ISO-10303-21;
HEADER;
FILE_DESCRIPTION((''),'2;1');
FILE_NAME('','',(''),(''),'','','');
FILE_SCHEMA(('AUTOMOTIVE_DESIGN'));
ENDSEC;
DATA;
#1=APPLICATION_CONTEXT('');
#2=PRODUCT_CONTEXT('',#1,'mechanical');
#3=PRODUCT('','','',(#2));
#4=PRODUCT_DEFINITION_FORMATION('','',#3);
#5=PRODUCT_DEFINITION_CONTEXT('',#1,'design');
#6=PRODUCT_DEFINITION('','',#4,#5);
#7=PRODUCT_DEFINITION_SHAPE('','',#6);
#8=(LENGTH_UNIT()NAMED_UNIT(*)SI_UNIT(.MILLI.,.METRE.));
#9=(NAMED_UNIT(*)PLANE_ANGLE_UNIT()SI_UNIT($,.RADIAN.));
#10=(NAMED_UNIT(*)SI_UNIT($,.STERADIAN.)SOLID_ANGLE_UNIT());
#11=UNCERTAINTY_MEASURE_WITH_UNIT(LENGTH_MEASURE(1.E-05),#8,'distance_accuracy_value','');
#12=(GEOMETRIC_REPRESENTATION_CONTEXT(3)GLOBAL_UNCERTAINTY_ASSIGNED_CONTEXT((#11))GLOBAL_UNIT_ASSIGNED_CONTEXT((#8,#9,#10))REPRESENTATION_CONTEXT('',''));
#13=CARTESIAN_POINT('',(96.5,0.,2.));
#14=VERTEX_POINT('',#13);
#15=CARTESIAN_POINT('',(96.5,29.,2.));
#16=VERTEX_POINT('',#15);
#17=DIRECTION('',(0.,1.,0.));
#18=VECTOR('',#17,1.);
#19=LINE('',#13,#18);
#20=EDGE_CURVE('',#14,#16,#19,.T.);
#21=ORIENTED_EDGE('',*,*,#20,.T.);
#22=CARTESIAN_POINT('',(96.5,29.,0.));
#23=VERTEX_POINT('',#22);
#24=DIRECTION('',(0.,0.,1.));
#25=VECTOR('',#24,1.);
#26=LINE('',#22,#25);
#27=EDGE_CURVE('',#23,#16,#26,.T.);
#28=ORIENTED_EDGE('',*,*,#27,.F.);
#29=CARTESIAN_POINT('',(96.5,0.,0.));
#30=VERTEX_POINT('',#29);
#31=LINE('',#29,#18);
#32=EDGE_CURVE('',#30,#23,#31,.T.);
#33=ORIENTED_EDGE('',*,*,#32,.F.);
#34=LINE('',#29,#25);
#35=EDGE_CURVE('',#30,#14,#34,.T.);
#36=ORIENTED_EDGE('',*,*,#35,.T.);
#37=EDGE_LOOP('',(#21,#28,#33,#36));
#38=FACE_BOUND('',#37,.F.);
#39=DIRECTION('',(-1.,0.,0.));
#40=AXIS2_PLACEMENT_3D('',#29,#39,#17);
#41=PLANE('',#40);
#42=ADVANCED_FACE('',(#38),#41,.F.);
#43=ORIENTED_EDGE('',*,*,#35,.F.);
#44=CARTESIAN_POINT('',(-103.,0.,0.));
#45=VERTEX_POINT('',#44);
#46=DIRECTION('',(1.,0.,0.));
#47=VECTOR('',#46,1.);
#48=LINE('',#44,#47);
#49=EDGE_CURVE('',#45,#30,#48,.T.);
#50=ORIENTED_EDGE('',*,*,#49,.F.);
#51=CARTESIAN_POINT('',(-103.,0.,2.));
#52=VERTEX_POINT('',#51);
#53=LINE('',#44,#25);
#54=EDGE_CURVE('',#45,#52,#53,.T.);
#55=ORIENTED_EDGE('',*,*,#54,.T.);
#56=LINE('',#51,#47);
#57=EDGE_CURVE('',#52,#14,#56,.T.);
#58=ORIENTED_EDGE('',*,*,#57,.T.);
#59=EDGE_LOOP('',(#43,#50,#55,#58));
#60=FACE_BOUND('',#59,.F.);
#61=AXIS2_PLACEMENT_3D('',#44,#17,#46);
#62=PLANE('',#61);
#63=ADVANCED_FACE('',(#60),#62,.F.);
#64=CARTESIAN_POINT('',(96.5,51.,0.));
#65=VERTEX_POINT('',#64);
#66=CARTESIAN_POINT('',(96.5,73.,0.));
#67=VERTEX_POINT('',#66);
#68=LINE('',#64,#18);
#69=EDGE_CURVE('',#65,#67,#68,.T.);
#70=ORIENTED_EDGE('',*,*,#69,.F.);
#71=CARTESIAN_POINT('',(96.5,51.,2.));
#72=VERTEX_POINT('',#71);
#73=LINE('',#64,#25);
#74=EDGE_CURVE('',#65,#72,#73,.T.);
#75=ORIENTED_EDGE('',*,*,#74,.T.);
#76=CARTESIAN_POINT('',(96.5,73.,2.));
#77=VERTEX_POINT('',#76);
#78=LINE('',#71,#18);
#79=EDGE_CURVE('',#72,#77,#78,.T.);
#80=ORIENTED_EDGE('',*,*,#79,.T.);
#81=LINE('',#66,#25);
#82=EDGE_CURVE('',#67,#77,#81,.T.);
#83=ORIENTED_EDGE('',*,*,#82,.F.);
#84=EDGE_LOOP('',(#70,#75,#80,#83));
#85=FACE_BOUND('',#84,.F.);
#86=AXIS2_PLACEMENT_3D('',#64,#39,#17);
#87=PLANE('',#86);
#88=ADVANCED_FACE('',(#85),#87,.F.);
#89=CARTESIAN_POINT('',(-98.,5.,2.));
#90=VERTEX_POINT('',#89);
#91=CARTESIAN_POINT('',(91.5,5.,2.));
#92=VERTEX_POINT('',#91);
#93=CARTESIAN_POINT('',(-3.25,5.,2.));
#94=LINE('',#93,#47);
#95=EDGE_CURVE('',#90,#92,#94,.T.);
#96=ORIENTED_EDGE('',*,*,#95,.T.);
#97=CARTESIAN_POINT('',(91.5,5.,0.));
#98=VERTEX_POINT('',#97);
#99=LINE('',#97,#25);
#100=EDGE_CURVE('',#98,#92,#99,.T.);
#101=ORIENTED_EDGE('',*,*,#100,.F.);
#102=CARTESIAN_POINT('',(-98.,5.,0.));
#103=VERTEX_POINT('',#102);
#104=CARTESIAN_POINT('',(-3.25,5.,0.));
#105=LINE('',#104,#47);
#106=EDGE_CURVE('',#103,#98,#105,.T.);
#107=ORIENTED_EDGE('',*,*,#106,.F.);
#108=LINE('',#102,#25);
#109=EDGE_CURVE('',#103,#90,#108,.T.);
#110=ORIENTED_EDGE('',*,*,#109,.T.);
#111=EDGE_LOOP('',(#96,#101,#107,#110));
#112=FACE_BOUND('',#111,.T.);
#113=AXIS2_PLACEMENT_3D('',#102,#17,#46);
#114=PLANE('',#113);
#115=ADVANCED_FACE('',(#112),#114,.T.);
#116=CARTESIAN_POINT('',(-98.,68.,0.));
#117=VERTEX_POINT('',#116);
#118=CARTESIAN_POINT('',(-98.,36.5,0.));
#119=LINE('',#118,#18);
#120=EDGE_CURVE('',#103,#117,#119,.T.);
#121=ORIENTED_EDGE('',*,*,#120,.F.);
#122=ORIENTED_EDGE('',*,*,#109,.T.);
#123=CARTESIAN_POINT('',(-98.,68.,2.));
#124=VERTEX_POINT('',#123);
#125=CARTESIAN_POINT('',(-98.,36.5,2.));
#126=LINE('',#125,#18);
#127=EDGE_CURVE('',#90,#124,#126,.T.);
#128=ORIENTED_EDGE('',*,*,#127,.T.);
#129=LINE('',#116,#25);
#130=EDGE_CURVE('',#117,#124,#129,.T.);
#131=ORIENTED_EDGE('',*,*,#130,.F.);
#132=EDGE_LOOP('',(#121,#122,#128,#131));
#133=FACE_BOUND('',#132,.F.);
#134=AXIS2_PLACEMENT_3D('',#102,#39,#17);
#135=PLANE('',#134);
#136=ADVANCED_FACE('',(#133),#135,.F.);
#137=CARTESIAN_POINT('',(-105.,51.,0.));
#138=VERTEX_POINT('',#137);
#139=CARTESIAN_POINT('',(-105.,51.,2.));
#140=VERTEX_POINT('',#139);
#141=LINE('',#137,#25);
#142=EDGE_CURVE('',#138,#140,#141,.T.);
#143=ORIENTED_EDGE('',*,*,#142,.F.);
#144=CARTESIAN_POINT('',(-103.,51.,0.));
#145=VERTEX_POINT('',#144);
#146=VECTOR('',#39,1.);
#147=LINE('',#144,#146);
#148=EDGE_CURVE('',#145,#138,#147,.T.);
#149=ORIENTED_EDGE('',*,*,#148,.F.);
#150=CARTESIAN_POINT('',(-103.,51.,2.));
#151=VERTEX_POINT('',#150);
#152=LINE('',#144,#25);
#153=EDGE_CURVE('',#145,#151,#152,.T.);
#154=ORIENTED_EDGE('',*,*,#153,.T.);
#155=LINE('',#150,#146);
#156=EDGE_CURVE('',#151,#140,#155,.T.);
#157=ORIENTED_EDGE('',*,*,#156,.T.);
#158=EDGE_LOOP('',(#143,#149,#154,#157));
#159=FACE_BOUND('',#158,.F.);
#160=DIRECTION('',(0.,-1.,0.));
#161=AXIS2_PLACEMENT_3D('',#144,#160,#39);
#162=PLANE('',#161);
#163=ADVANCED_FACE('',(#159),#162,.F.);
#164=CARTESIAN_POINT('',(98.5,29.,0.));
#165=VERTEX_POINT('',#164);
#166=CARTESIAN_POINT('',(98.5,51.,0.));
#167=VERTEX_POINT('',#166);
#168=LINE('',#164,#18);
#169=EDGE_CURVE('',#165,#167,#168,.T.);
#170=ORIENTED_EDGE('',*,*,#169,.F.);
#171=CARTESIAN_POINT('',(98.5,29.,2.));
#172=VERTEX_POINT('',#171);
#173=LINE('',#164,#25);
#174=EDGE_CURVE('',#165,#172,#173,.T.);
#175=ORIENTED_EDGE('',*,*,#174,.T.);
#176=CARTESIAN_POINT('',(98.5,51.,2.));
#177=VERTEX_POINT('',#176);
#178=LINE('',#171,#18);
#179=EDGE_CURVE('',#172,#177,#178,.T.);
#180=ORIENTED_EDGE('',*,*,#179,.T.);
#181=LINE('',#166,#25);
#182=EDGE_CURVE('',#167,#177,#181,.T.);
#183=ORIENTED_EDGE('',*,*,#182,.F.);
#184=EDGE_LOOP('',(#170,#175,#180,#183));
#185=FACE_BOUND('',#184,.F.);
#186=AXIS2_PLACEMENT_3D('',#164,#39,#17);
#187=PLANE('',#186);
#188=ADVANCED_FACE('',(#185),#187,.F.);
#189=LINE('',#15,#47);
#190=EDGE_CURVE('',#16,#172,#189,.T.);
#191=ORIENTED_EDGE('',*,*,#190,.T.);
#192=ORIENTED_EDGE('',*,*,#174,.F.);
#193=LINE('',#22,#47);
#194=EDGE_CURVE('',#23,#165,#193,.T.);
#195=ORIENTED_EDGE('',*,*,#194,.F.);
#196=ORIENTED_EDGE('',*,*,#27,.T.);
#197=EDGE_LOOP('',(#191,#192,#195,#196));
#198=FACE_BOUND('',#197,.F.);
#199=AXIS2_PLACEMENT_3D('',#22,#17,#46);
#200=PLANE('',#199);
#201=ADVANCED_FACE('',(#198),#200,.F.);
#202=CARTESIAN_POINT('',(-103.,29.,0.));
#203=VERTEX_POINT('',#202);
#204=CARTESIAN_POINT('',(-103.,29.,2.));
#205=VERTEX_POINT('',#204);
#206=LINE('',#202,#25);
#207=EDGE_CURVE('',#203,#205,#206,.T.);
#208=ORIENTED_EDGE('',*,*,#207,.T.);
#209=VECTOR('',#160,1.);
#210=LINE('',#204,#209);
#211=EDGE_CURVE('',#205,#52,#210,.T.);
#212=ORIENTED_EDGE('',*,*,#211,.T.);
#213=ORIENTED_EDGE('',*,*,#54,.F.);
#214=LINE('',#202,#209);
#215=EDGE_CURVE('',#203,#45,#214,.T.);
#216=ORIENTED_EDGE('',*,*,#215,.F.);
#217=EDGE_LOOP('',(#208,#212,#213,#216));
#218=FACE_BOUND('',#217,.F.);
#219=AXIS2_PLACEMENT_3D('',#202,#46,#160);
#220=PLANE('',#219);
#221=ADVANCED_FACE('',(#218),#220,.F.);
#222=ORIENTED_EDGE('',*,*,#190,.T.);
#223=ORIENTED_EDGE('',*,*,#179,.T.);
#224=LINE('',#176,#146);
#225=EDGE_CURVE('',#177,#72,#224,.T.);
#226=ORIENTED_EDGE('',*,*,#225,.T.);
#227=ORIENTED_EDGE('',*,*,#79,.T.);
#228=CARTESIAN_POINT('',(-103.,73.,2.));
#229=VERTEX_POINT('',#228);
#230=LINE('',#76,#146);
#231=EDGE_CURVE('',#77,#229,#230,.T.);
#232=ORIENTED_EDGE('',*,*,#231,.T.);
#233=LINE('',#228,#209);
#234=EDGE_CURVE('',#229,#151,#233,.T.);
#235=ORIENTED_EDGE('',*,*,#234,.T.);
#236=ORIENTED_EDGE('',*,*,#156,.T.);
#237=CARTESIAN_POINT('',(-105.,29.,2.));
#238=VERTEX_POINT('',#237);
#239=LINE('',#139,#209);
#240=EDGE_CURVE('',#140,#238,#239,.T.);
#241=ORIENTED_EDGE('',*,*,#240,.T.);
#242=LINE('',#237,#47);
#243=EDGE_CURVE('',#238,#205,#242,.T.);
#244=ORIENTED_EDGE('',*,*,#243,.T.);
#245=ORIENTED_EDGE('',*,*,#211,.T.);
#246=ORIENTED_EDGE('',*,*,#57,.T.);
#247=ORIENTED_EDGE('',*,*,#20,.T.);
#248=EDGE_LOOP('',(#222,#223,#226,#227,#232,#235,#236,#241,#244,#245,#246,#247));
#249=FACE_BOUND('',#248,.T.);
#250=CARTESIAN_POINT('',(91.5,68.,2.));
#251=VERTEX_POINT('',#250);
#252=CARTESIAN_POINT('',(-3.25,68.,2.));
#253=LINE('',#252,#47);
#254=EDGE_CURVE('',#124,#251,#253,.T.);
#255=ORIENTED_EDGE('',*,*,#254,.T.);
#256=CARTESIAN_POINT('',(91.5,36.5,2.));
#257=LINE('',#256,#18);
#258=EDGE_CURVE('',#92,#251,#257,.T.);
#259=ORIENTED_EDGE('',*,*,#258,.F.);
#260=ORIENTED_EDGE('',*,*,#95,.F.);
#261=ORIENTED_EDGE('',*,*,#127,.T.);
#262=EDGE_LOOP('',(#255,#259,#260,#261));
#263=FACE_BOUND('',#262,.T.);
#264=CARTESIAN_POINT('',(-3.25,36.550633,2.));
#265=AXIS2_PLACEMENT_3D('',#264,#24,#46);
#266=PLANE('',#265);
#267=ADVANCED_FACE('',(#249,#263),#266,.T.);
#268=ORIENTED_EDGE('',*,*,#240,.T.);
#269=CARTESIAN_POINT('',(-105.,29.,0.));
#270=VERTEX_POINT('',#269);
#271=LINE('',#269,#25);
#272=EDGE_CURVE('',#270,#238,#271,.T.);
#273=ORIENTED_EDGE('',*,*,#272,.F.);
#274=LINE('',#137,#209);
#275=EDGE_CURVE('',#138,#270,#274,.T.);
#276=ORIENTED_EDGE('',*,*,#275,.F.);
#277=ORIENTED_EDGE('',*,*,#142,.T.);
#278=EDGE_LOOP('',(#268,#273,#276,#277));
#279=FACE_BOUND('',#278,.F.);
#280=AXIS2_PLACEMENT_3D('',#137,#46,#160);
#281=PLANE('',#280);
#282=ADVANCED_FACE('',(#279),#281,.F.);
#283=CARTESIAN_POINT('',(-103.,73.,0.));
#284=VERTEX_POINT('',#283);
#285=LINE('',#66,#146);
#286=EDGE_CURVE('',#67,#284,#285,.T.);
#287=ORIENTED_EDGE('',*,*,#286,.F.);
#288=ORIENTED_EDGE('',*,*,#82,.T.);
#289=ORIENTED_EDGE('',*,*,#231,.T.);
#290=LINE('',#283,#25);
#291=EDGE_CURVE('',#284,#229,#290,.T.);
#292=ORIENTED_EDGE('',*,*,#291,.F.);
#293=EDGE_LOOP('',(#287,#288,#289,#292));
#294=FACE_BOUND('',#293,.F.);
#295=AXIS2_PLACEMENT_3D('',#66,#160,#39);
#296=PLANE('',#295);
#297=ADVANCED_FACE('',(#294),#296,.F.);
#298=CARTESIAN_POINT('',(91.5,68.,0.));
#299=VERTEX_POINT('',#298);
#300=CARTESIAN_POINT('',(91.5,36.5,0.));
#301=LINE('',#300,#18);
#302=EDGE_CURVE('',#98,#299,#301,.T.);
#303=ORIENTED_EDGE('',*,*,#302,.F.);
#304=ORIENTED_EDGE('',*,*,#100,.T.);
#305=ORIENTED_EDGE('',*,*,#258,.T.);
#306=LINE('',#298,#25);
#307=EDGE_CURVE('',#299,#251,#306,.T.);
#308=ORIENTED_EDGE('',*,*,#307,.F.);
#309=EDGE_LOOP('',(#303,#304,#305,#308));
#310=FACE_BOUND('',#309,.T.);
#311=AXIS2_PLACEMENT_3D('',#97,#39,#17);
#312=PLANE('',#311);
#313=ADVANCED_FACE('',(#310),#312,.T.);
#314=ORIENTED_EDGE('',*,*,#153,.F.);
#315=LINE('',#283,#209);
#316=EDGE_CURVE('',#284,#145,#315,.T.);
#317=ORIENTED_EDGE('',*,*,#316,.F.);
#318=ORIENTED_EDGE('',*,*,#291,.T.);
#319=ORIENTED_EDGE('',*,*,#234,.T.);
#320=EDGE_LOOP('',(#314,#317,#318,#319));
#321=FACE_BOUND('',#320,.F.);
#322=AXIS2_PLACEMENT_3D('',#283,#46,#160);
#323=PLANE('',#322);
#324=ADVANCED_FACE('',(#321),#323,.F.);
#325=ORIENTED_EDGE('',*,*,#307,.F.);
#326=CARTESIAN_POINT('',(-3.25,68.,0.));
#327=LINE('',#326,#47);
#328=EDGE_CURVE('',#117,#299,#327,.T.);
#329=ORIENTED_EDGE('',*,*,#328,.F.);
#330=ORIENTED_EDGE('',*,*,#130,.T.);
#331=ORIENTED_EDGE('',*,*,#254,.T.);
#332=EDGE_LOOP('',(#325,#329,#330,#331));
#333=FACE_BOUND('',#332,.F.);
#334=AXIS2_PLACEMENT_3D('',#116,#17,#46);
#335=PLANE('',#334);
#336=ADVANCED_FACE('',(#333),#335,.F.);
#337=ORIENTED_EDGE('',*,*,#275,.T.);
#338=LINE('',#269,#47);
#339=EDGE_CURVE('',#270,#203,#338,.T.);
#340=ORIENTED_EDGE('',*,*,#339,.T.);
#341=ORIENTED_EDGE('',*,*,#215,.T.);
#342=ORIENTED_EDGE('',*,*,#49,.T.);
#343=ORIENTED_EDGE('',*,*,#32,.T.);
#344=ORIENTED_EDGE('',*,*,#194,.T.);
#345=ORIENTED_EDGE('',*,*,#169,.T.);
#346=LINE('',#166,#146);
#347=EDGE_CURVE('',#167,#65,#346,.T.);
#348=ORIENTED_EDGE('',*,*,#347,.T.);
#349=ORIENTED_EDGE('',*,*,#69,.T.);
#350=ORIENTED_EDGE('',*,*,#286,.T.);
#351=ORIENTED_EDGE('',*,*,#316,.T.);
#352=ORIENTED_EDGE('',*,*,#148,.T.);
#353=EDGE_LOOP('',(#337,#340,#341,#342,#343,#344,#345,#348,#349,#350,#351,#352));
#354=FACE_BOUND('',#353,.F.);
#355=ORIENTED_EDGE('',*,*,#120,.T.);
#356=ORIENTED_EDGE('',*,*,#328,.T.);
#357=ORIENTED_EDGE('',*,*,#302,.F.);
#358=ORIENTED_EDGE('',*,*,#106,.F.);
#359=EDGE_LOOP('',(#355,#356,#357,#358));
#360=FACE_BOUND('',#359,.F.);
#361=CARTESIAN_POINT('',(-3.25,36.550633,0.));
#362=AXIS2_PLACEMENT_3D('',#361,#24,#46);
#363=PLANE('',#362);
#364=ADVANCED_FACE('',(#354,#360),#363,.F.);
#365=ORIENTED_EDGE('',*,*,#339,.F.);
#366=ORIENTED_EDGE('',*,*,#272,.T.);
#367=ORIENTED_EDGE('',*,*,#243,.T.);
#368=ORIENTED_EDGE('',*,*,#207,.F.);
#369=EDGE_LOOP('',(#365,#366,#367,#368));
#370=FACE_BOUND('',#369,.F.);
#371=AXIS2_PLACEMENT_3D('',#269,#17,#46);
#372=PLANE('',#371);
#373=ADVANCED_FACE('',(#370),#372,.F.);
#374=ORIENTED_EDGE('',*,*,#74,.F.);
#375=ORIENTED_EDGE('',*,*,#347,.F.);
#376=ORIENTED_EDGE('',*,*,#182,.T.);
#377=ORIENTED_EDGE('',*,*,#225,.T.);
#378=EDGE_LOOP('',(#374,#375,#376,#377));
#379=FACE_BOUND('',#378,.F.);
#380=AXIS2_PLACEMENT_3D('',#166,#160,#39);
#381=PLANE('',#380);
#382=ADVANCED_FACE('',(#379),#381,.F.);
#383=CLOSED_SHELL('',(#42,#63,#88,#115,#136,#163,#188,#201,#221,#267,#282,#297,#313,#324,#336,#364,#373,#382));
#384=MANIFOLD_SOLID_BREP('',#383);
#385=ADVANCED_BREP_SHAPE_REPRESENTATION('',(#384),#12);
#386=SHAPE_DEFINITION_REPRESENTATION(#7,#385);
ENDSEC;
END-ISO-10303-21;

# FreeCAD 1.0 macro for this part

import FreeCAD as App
import Part
import Sketcher
from FreeCAD import Vector

doc = App.newDocument("Part")
params = doc.addObject("Spreadsheet::Sheet", "Params")
for row, (alias, value) in enumerate([
    ("sketch1_width", "2 mm"),
    ("sketch1_height", "22 mm"),
    ("sketch1_height2", "29 mm"),
    ("sketch1_height3", "63 mm"),
    ("sketch1_width2", "199.5 mm"),
    ("pad1_length", "2 mm"),
], start=1):
    params.set(f"A{row}", alias)
    params.set(f"B{row}", "=" + value)
    params.setAlias(f"B{row}", alias)

body = doc.addObject("PartDesign::Body", "Body")

# Sketch on XY plane
sketch1 = body.newObject("Sketcher::SketchObject", "Sketch")
sketch1.AttachmentSupport = (doc.getObject("XY_Plane"), [""])
sketch1.MapMode = "FlatFace"
sketch1.addGeometry([
    Part.LineSegment(Vector(96.5, 73, 0), Vector(-103, 73, 0)),  # 0
    Part.LineSegment(Vector(-103, 73, 0), Vector(-103, 51, 0)),  # 1
    Part.LineSegment(Vector(-103, 51, 0), Vector(-105, 51, 0)),  # 2
    Part.LineSegment(Vector(-105, 51, 0), Vector(-105, 29, 0)),  # 3
    Part.LineSegment(Vector(-105, 29, 0), Vector(-103, 29, 0)),  # 4
    Part.LineSegment(Vector(-103, 29, 0), Vector(-103, 0, 0)),  # 5
    Part.LineSegment(Vector(-103, 0, 0), Vector(96.5, 0, 0)),  # 6
    Part.LineSegment(Vector(96.5, 0, 0), Vector(96.5, 29, 0)),  # 7
    Part.LineSegment(Vector(96.5, 29, 0), Vector(98.5, 29, 0)),  # 8
    Part.LineSegment(Vector(98.5, 29, 0), Vector(98.5, 51, 0)),  # 9
    Part.LineSegment(Vector(98.5, 51, 0), Vector(96.5, 51, 0)),  # 10
    Part.LineSegment(Vector(96.5, 51, 0), Vector(96.5, 73, 0)),  # 11
    Part.LineSegment(Vector(91.5, 5, 0), Vector(-98, 5, 0)),  # 12
    Part.LineSegment(Vector(-98, 5, 0), Vector(-98, 68, 0)),  # 13
    Part.LineSegment(Vector(-98, 68, 0), Vector(91.5, 68, 0)),  # 14
    Part.LineSegment(Vector(91.5, 68, 0), Vector(91.5, 5, 0)),  # 15
], False)
sketch1.addConstraint([
    Sketcher.Constraint("Coincident", 0, 2, 1, 1),
    Sketcher.Constraint("Coincident", 1, 2, 2, 1),
    Sketcher.Constraint("Coincident", 2, 2, 3, 1),
    Sketcher.Constraint("Coincident", 3, 2, 4, 1),
    Sketcher.Constraint("Coincident", 4, 2, 5, 1),
    Sketcher.Constraint("Coincident", 5, 2, 6, 1),
    Sketcher.Constraint("Coincident", 6, 2, 7, 1),
    Sketcher.Constraint("Coincident", 7, 2, 8, 1),
    Sketcher.Constraint("Coincident", 8, 2, 9, 1),
    Sketcher.Constraint("Coincident", 9, 2, 10, 1),
    Sketcher.Constraint("Coincident", 10, 2, 11, 1),
    Sketcher.Constraint("Coincident", 11, 2, 0, 1),
    Sketcher.Constraint("Coincident", 12, 2, 13, 1),
    Sketcher.Constraint("Coincident", 13, 2, 14, 1),
    Sketcher.Constraint("Coincident", 14, 2, 15, 1),
    Sketcher.Constraint("Coincident", 15, 2, 12, 1),
    Sketcher.Constraint("Horizontal", 0),
    Sketcher.Constraint("Vertical", 1),
    Sketcher.Constraint("Horizontal", 2),
    Sketcher.Constraint("Vertical", 3),
    Sketcher.Constraint("Horizontal", 4),
    Sketcher.Constraint("Vertical", 5),
    Sketcher.Constraint("Horizontal", 6),
    Sketcher.Constraint("Vertical", 7),
    Sketcher.Constraint("Horizontal", 8),
    Sketcher.Constraint("Vertical", 9),
    Sketcher.Constraint("Horizontal", 10),
    Sketcher.Constraint("Vertical", 11),
    Sketcher.Constraint("Horizontal", 12),
    Sketcher.Constraint("Vertical", 13),
    Sketcher.Constraint("Horizontal", 14),
    Sketcher.Constraint("Vertical", 15),
    Sketcher.Constraint("PointOnObject", 5, 2, -1),
    Sketcher.Constraint("Horizontal", 4, 2, 7, 2),
    Sketcher.Constraint("Horizontal", 2, 2, 9, 2),
    Sketcher.Constraint("Vertical", 1, 2, 4, 2),
    Sketcher.Constraint("Vertical", 7, 2, 10, 2),
    Sketcher.Constraint("Equal", 4, 8),
    Sketcher.Constraint("Equal", 1, 3),
    Sketcher.Constraint("DistanceX", 2, 2, 2, 1, 2.0),
    Sketcher.Constraint("DistanceY", 1, 2, 1, 1, 22.0),
    Sketcher.Constraint("DistanceY", 5, 2, 5, 1, 29.0),
    Sketcher.Constraint("DistanceY", 13, 1, 13, 2, 63.0),
    Sketcher.Constraint("DistanceX", 0, 2, 0, 1, 199.5),
    Sketcher.Constraint("DistanceX", 12, 2, 12, 1, 189.5),
    Sketcher.Constraint("DistanceX", 0, 2, -1, 1, 103.0),
    Sketcher.Constraint("DistanceX", 12, 2, -1, 1, 98.0),
    Sketcher.Constraint("DistanceY", -1, 1, 12, 2, 5.0),
])
sketch1.setExpression("Constraints[39]", "Params.sketch1_width")
sketch1.setExpression("Constraints[40]", "Params.sketch1_height")
sketch1.setExpression("Constraints[41]", "Params.sketch1_height2")
sketch1.setExpression("Constraints[42]", "Params.sketch1_height3")
sketch1.setExpression("Constraints[43]", "Params.sketch1_width2")
pad1 = body.newObject("PartDesign::Pad", "Pad")
pad1.Profile = sketch1
pad1.setExpression("Length", "Params.pad1_length")

doc.recompute()
